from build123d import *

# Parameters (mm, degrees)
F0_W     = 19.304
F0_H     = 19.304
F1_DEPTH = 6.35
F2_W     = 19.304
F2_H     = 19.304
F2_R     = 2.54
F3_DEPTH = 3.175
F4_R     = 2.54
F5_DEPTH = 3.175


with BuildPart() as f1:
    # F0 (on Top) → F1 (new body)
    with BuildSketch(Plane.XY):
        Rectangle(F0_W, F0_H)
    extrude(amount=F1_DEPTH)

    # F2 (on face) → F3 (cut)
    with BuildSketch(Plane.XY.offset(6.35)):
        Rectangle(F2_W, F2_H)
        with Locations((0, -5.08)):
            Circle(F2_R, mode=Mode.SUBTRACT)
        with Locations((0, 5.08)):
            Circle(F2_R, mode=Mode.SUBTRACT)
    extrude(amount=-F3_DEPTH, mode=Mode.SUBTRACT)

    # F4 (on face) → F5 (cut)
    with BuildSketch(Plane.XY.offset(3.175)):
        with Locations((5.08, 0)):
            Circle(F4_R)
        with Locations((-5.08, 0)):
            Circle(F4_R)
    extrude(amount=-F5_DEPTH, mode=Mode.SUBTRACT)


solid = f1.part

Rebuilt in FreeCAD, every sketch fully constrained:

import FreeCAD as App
import Part
import Sketcher
Q = App.Units.Quantity


def add_polygon(sketch, points):
    """Adds a closed chain of lines whose ends are joined by coincident constraints."""
    first, n = sketch.GeometryCount, len(points)
    for a, b in zip(points, points[1:] + points[:1]):
        sketch.addGeometry(Part.LineSegment(App.Vector(*a, 0), App.Vector(*b, 0)), False)
    for i in range(n):
        sketch.addConstraint(Sketcher.Constraint("Coincident", first + i, 2, first + (i + 1) % n, 1))

doc = App.newDocument("Part")
body = doc.addObject("PartDesign::Body", "Body")

sketch1 = body.newObject("Sketcher::SketchObject", "Sketch")
sketch1.AttachmentSupport = (doc.getObject("XY_Plane"), [""])
sketch1.MapMode = "FlatFace"
add_polygon(sketch1, [(-9.652, 9.652), (-9.652, -9.652), (9.652, -9.652), (9.652, 9.652)])
sketch1.addConstraint(Sketcher.Constraint("Vertical", 0))
sketch1.addConstraint(Sketcher.Constraint("Horizontal", 1))
sketch1.addConstraint(Sketcher.Constraint("Vertical", 2))
sketch1.addConstraint(Sketcher.Constraint("Horizontal", 3))
sketch1.addConstraint(Sketcher.Constraint("Symmetric", 0, 2, 2, 2, -1, 1))
sketch1.addConstraint(Sketcher.Constraint("Equal", 3, 0))
sketch1.addConstraint(Sketcher.Constraint("DistanceX", 1, 1, 1, 2, Q("0.76 in")))
pad1 = body.newObject("PartDesign::Pad", "Pad")
pad1.Profile = sketch1
pad1.Length = Q("0.25 in")

sketch2 = body.newObject("Sketcher::SketchObject", "Sketch001")
sketch2.AttachmentSupport = (doc.getObject("XY_Plane"), [""])
sketch2.MapMode = "FlatFace"
sketch2.AttachmentOffset = App.Placement(App.Vector(0, 0, 0.25 * 25.4), App.Rotation())
add_polygon(sketch2, [(-9.652, 9.652), (-9.652, -9.652), (9.652, -9.652), (9.652, 9.652)])
sketch2.addGeometry(Part.Circle(App.Vector(0, -5.08, 0), App.Vector(0, 0, 1), 2.54), False)
sketch2.addGeometry(Part.Circle(App.Vector(0, 5.08, 0), App.Vector(0, 0, 1), 2.54), False)
sketch2.addConstraint(Sketcher.Constraint("Vertical", 0))
sketch2.addConstraint(Sketcher.Constraint("Horizontal", 1))
sketch2.addConstraint(Sketcher.Constraint("Vertical", 2))
sketch2.addConstraint(Sketcher.Constraint("Horizontal", 3))
sketch2.addConstraint(Sketcher.Constraint("Equal", 4, 5))
sketch2.addConstraint(Sketcher.Constraint("Symmetric", 4, 3, 5, 3, -1, 1))
sketch2.addConstraint(Sketcher.Constraint("Symmetric", 0, 2, 2, 2, -1, 1))
sketch2.addConstraint(Sketcher.Constraint("PointOnObject", 4, 3, -2))
sketch2.addConstraint(Sketcher.Constraint("Equal", 3, 0))
sketch2.addConstraint(Sketcher.Constraint("Diameter", 4, Q("0.2 in")))
sketch2.addConstraint(Sketcher.Constraint("DistanceX", 1, 1, 1, 2, Q("0.76 in")))
sketch2.addConstraint(Sketcher.Constraint("DistanceY", 4, 3, -1, 1, Q("0.2 in")))
pocket1 = body.newObject("PartDesign::Pocket", "Pocket")
pocket1.Profile = sketch2
pocket1.Length = Q("0.125 in")

sketch3 = body.newObject("Sketcher::SketchObject", "Sketch002")
sketch3.AttachmentSupport = (doc.getObject("XY_Plane"), [""])
sketch3.MapMode = "FlatFace"
sketch3.AttachmentOffset = App.Placement(App.Vector(0, 0, 0.125 * 25.4), App.Rotation())
sketch3.addGeometry(Part.Circle(App.Vector(5.08, 0, 0), App.Vector(0, 0, 1), 2.54), False)
sketch3.addGeometry(Part.Circle(App.Vector(-5.08, 0, 0), App.Vector(0, 0, 1), 2.54), False)
sketch3.addConstraint(Sketcher.Constraint("Equal", 0, 1))
sketch3.addConstraint(Sketcher.Constraint("Symmetric", 0, 3, 1, 3, -1, 1))
sketch3.addConstraint(Sketcher.Constraint("PointOnObject", 0, 3, -1))
sketch3.addConstraint(Sketcher.Constraint("Diameter", 0, Q("0.2 in")))
sketch3.addConstraint(Sketcher.Constraint("DistanceX", -1, 1, 0, 3, Q("0.2 in")))
pocket2 = body.newObject("PartDesign::Pocket", "Pocket001")
pocket2.Profile = sketch3
pocket2.Length = Q("0.125 in")

doc.recompute()
